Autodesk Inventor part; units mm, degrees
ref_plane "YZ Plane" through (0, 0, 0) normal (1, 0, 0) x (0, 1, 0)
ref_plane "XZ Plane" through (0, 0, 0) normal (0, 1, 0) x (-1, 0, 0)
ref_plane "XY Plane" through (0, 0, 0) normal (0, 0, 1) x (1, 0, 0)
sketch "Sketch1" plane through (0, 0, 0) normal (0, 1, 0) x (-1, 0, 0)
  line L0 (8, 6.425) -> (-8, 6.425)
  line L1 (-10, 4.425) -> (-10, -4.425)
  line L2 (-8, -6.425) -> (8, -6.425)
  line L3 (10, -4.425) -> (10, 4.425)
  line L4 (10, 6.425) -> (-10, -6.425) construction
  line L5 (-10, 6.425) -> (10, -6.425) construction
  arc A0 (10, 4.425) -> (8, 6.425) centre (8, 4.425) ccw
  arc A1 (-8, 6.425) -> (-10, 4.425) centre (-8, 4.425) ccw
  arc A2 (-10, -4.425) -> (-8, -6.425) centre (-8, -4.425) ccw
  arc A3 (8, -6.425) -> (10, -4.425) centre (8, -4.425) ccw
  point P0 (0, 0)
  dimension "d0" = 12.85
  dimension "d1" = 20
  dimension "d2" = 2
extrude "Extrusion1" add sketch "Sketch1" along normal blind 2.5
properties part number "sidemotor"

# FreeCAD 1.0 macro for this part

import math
import FreeCAD as App
import Part
import Sketcher
from FreeCAD import Vector

doc = App.newDocument("Part")
params = doc.addObject("Spreadsheet::Sheet", "Params")
for row, (alias, value) in enumerate([
    ("sketch1_radius", "2 mm"),
    ("sketch1_width", "16 mm"),
    ("pad1_length", "2.5 mm"),
], start=1):
    params.set(f"A{row}", alias)
    params.set(f"B{row}", "=" + value)
    params.setAlias(f"B{row}", alias)

body = doc.addObject("PartDesign::Body", "Body")

# Sketch on XZ plane
sketch1 = body.newObject("Sketcher::SketchObject", "Sketch")
sketch1.AttachmentSupport = (doc.getObject("XZ_Plane"), [""])
sketch1.MapMode = "FlatFace"
sketch1.addGeometry([
    Part.ArcOfCircle(Part.Circle(Vector(-8, 4.425, 0), Vector(0, 0, 1), 2), math.radians(90), math.radians(180)),  # 0
    Part.LineSegment(Vector(-8, 6.425, 0), Vector(8, 6.425, 0)),  # 1
    Part.ArcOfCircle(Part.Circle(Vector(8, 4.425, 0), Vector(0, 0, 1), 2), math.radians(0), math.radians(90)),  # 2
    Part.LineSegment(Vector(10, 4.425, 0), Vector(10, -4.425, 0)),  # 3
    Part.ArcOfCircle(Part.Circle(Vector(8, -4.425, 0), Vector(0, 0, 1), 2), math.radians(-90), math.radians(0)),  # 4
    Part.LineSegment(Vector(8, -6.425, 0), Vector(-8, -6.425, 0)),  # 5
    Part.ArcOfCircle(Part.Circle(Vector(-8, -4.425, 0), Vector(0, 0, 1), 2), math.radians(180), math.radians(270)),  # 6
    Part.LineSegment(Vector(-10, -4.425, 0), Vector(-10, 4.425, 0)),  # 7
], False)
sketch1.addConstraint([
    Sketcher.Constraint("Tangent", 0, 1, 1, 1),
    Sketcher.Constraint("Tangent", 1, 2, 2, 2),
    Sketcher.Constraint("Tangent", 2, 1, 3, 1),
    Sketcher.Constraint("Tangent", 3, 2, 4, 2),
    Sketcher.Constraint("Tangent", 4, 1, 5, 1),
    Sketcher.Constraint("Tangent", 5, 2, 6, 2),
    Sketcher.Constraint("Tangent", 6, 1, 7, 1),
    Sketcher.Constraint("Tangent", 7, 2, 0, 2),
    Sketcher.Constraint("Horizontal", 1),
    Sketcher.Constraint("Vertical", 3),
    Sketcher.Constraint("Horizontal", 5),
    Sketcher.Constraint("Vertical", 7),
    Sketcher.Constraint("Equal", 0, 2),
    Sketcher.Constraint("Equal", 2, 4),
    Sketcher.Constraint("Equal", 4, 6),
    Sketcher.Constraint("Symmetric", 0, 3, 4, 3, -1, 1),
    Sketcher.Constraint("Radius", 0, 2.0),
    Sketcher.Constraint("DistanceX", 1, 1, 1, 2, 16.0),
    Sketcher.Constraint("DistanceY", 4, 1, 1, 2, 12.85),
])
sketch1.setExpression("Constraints[16]", "Params.sketch1_radius")
sketch1.setExpression("Constraints[17]", "Params.sketch1_width")
pad1 = body.newObject("PartDesign::Pad", "Pad")
pad1.Profile = sketch1
pad1.setExpression("Length", "Params.pad1_length")
pad1.Reversed = True

doc.recompute()
